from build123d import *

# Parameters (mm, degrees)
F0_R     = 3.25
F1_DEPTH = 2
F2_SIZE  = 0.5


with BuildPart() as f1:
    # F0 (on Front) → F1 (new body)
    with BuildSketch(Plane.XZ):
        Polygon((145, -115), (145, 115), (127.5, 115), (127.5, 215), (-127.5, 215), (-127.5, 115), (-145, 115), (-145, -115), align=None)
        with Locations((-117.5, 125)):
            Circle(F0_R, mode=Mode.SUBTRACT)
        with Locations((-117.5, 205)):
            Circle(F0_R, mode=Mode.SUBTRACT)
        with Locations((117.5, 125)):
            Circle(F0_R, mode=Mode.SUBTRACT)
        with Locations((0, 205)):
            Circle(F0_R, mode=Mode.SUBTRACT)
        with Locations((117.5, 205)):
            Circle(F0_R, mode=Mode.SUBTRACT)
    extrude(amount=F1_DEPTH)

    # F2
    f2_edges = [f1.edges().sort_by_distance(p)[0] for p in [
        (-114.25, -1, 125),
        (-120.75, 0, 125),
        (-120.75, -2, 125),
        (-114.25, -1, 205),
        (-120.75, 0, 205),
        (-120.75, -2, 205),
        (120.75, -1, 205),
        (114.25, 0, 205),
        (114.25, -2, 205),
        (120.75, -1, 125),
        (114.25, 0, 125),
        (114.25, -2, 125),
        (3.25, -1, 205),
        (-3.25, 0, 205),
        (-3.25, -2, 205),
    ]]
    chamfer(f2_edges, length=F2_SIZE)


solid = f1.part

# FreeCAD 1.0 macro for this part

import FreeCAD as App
import Part
import Sketcher


def edges_at(feature, points):
    """Names of the edges that pass closest to the given points."""
    edges = feature.Shape.Edges
    near = lambda p: min(range(len(edges)), key=lambda i: edges[i].distToShape(Part.Vertex(*p))[0])
    return sorted({f"Edge{near(p) + 1}" for p in points})


def add_polygon(sketch, points):
    """Adds a closed chain of lines whose ends are joined by coincident constraints."""
    first, n = sketch.GeometryCount, len(points)
    for a, b in zip(points, points[1:] + points[:1]):
        sketch.addGeometry(Part.LineSegment(App.Vector(*a, 0), App.Vector(*b, 0)), False)
    for i in range(n):
        sketch.addConstraint(Sketcher.Constraint("Coincident", first + i, 2, first + (i + 1) % n, 1))

doc = App.newDocument("Part")
params = doc.addObject("Spreadsheet::Sheet", "Params")
for row, (alias, value) in enumerate([
    ("sketch1_diameter", "6.5 mm"),
    ("sketch1_width", "255 mm"),
    ("sketch1_width2", "290 mm"),
    ("sketch1_height", "230 mm"),
    ("sketch1_height2", "100 mm"),
    ("pad1_length", "2 mm"),
    ("chamfer_size", "0.5 mm"),
], start=1):
    params.set(f"A{row}", alias)
    params.set(f"B{row}", "=" + value)
    params.setAlias(f"B{row}", alias)

body = doc.addObject("PartDesign::Body", "Body")

# Sketch on XZ plane
sketch1 = doc.addObject("Sketcher::SketchObject", "Sketch")
body.addObject(sketch1)
sketch1.AttachmentSupport = (doc.XZ_Plane, [""])
sketch1.MapMode = "FlatFace"
add_polygon(sketch1, [(145, -115), (145, 115), (127.5, 115), (127.5, 215), (-127.5, 215), (-127.5, 115), (-145, 115), (-145, -115)])  # lines 0-7
sketch1.addGeometry(Part.Circle(App.Vector(-117.5, 125, 0), App.Vector(0, 0, 1), 3.2), False)  # 8
sketch1.addGeometry(Part.Circle(App.Vector(117.5, 125, 0), App.Vector(0, 0, 1), 3.2), False)  # 9
sketch1.addGeometry(Part.Circle(App.Vector(-117.5, 205, 0), App.Vector(0, 0, 1), 3.2), False)  # 10
sketch1.addGeometry(Part.Circle(App.Vector(0, 205, 0), App.Vector(0, 0, 1), 3.2), False)  # 11
sketch1.addGeometry(Part.Circle(App.Vector(117.5, 205, 0), App.Vector(0, 0, 1), 3.2), False)  # 12
sketch1.addConstraint([
    Sketcher.Constraint("Vertical", 0),
    Sketcher.Constraint("Horizontal", 1),
    Sketcher.Constraint("Vertical", 2),
    Sketcher.Constraint("Horizontal", 3),
    Sketcher.Constraint("Vertical", 4),
    Sketcher.Constraint("Horizontal", 5),
    Sketcher.Constraint("Vertical", 6),
    Sketcher.Constraint("Horizontal", 7),
    Sketcher.Constraint("Equal", 8, 9),
    Sketcher.Constraint("Equal", 9, 10),
    Sketcher.Constraint("Equal", 10, 11),
    Sketcher.Constraint("Equal", 11, 12),
    Sketcher.Constraint("Symmetric", 0, 2, 6, 2, -1, 1),
    Sketcher.Constraint("Symmetric", 8, 3, 9, 3, -2),
    Sketcher.Constraint("Symmetric", 10, 3, 12, 3, -2),
    Sketcher.Constraint("Symmetric", 1, 2, 4, 2, -2),
    Sketcher.Constraint("PointOnObject", 11, 3, -2),
    Sketcher.Constraint("Horizontal", 10, 3, 11, 3),
    Sketcher.Constraint("Vertical", 8, 3, 10, 3),
    Sketcher.Constraint("Diameter", 8, 6.5),
    Sketcher.Constraint("DistanceX", 3, 2, 3, 1, 255.0),
    Sketcher.Constraint("DistanceX", 7, 1, 7, 2, 290.0),
    Sketcher.Constraint("DistanceY", 0, 1, 0, 2, 230.0),
    Sketcher.Constraint("DistanceY", 2, 1, 2, 2, 100.0),
    Sketcher.Constraint("DistanceY", -1, 1, 8, 3, 125.0),
    Sketcher.Constraint("DistanceY", -1, 1, 10, 3, 205.0),
    Sketcher.Constraint("DistanceX", 8, 3, 9, 3, 235.0),
])
sketch1.setExpression("Constraints[27]", "Params.sketch1_diameter")
sketch1.setExpression("Constraints[28]", "Params.sketch1_width")
sketch1.setExpression("Constraints[29]", "Params.sketch1_width2")
sketch1.setExpression("Constraints[30]", "Params.sketch1_height")
sketch1.setExpression("Constraints[31]", "Params.sketch1_height2")
pad1 = doc.addObject("PartDesign::Pad", "Pad")
body.addObject(pad1)
pad1.Profile = sketch1
pad1.setExpression("Length", "Params.pad1_length")
doc.recompute()

chamfer = doc.addObject("PartDesign::Chamfer", "Chamfer")
body.addObject(chamfer)
chamfer.Base = (pad1, edges_at(pad1, [
    (-114.25, -1, 125),
    (-120.75, 0, 125),
    (-120.75, -2, 125),
    (-114.25, -1, 205),
    (-120.75, 0, 205),
    (-120.75, -2, 205),
    (120.75, -1, 205),
    (114.25, 0, 205),
    (114.25, -2, 205),
    (120.75, -1, 125),
    (114.25, 0, 125),
    (114.25, -2, 125),
    (3.25, -1, 205),
    (-3.25, 0, 205),
    (-3.25, -2, 205),
]))
chamfer.setExpression("Size", "Params.chamfer_size")

doc.recompute()
